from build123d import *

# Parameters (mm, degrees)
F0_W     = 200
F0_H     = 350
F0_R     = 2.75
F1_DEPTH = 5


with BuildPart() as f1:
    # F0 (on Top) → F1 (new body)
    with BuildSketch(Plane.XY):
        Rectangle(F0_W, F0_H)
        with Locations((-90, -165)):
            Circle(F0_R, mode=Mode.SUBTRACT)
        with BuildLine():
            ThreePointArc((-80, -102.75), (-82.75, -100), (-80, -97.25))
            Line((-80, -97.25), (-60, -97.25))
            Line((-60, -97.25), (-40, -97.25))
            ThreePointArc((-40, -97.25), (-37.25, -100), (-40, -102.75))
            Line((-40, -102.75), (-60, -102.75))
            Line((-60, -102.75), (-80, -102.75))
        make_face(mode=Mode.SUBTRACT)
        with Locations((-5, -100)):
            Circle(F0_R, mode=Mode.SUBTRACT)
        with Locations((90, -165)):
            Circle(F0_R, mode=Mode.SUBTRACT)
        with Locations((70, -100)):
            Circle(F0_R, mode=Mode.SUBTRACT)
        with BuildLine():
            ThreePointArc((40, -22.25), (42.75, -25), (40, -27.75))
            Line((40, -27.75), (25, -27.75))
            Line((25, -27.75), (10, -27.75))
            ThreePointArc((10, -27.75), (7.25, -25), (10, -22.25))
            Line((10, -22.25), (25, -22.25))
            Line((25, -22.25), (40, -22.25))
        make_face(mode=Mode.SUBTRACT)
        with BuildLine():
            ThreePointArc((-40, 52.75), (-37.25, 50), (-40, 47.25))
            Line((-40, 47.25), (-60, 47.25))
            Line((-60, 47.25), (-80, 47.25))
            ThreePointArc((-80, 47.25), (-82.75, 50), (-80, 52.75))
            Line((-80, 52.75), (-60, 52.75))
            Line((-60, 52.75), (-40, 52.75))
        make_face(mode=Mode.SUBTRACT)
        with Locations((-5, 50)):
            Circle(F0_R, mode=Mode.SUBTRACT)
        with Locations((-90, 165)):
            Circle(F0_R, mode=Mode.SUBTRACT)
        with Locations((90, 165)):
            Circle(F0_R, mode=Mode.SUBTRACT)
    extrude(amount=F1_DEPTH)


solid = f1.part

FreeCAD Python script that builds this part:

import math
import FreeCAD as App
import Part
import Sketcher

V = App.Vector
Q = App.Units.Quantity

doc = App.newDocument("Part")
params = doc.addObject("Spreadsheet::Sheet", "Params")
for row, (alias, value) in enumerate([
    ("sketch1_diameter", "5.5 mm"),
    ("sketch1_width", "200 mm"),
    ("sketch1_width2", "40 mm"),
    ("sketch1_width3", "30 mm"),
    ("sketch1_height", "350 mm"),
    ("pad1_length", "5 mm"),
], start=1):
    params.set(f"A{row}", alias)
    params.set(f"B{row}", "=" + value)
    params.setAlias(f"B{row}", alias)

body = doc.addObject("PartDesign::Body", "Body")

# Sketch on XY plane
sketch1 = body.newObject("Sketcher::SketchObject", "Sketch")
sketch1.AttachmentSupport = (doc.getObject("XY_Plane"), [""])
sketch1.MapMode = "FlatFace"
sketch1.addGeometry(Part.LineSegment(V(-100, 175, 0), V(-100, -175, 0)), False)
sketch1.addGeometry(Part.LineSegment(V(-100, -175, 0), V(100, -175, 0)), False)
sketch1.addGeometry(Part.LineSegment(V(100, -175, 0), V(100, 175, 0)), False)
sketch1.addGeometry(Part.LineSegment(V(100, 175, 0), V(-100, 175, 0)), False)
sketch1.addGeometry(Part.Circle(V(-90, -165, 0), V(0, 0, 1), 2.8), False)
sketch1.addGeometry(Part.LineSegment(V(-40, -102.8, 0), V(-80, -102.8, 0)), False)
sketch1.addGeometry(Part.ArcOfCircle(Part.Circle(V(-80, -100, 0), V(0, 0, 1), 2.8), math.radians(90), math.radians(270)), False)
sketch1.addGeometry(Part.LineSegment(V(-80, -97.2, 0), V(-40, -97.2, 0)), False)
sketch1.addGeometry(Part.ArcOfCircle(Part.Circle(V(-40, -100, 0), V(0, 0, 1), 2.8), math.radians(-90), math.radians(90)), False)
sketch1.addGeometry(Part.Circle(V(-5, -100, 0), V(0, 0, 1), 2.8), False)
sketch1.addGeometry(Part.Circle(V(90, -165, 0), V(0, 0, 1), 2.8), False)
sketch1.addGeometry(Part.Circle(V(70, -100, 0), V(0, 0, 1), 2.8), False)
sketch1.addGeometry(Part.LineSegment(V(10, -22.2, 0), V(40, -22.2, 0)), False)
sketch1.addGeometry(Part.ArcOfCircle(Part.Circle(V(40, -25, 0), V(0, 0, 1), 2.8), math.radians(-90), math.radians(90)), False)
sketch1.addGeometry(Part.LineSegment(V(40, -27.8, 0), V(10, -27.8, 0)), False)
sketch1.addGeometry(Part.ArcOfCircle(Part.Circle(V(10, -25, 0), V(0, 0, 1), 2.8), math.radians(90), math.radians(270)), False)
sketch1.addGeometry(Part.LineSegment(V(-80, 52.8, 0), V(-40, 52.8, 0)), False)
sketch1.addGeometry(Part.ArcOfCircle(Part.Circle(V(-40, 50, 0), V(0, 0, 1), 2.8), math.radians(-90), math.radians(90)), False)
sketch1.addGeometry(Part.LineSegment(V(-40, 47.2, 0), V(-80, 47.2, 0)), False)
sketch1.addGeometry(Part.ArcOfCircle(Part.Circle(V(-80, 50, 0), V(0, 0, 1), 2.8), math.radians(90), math.radians(270)), False)
sketch1.addGeometry(Part.Circle(V(-5, 50, 0), V(0, 0, 1), 2.8), False)
sketch1.addGeometry(Part.Circle(V(-90, 165, 0), V(0, 0, 1), 2.8), False)
sketch1.addGeometry(Part.Circle(V(90, 165, 0), V(0, 0, 1), 2.8), False)
sketch1.addConstraint(Sketcher.Constraint("Coincident", 0, 2, 1, 1))
sketch1.addConstraint(Sketcher.Constraint("Coincident", 1, 2, 2, 1))
sketch1.addConstraint(Sketcher.Constraint("Coincident", 2, 2, 3, 1))
sketch1.addConstraint(Sketcher.Constraint("Coincident", 3, 2, 0, 1))
sketch1.addConstraint(Sketcher.Constraint("Tangent", 5, 2, 6, 2))
sketch1.addConstraint(Sketcher.Constraint("Tangent", 6, 1, 7, 1))
sketch1.addConstraint(Sketcher.Constraint("Tangent", 7, 2, 8, 2))
sketch1.addConstraint(Sketcher.Constraint("Tangent", 8, 1, 5, 1))
sketch1.addConstraint(Sketcher.Constraint("Tangent", 12, 2, 13, 2))
sketch1.addConstraint(Sketcher.Constraint("Tangent", 13, 1, 14, 1))
sketch1.addConstraint(Sketcher.Constraint("Tangent", 14, 2, 15, 2))
sketch1.addConstraint(Sketcher.Constraint("Tangent", 15, 1, 12, 1))
sketch1.addConstraint(Sketcher.Constraint("Tangent", 16, 2, 17, 2))
sketch1.addConstraint(Sketcher.Constraint("Tangent", 17, 1, 18, 1))
sketch1.addConstraint(Sketcher.Constraint("Tangent", 18, 2, 19, 2))
sketch1.addConstraint(Sketcher.Constraint("Tangent", 19, 1, 16, 1))
sketch1.addConstraint(Sketcher.Constraint("Vertical", 0))
sketch1.addConstraint(Sketcher.Constraint("Horizontal", 1))
sketch1.addConstraint(Sketcher.Constraint("Vertical", 2))
sketch1.addConstraint(Sketcher.Constraint("Horizontal", 3))
sketch1.addConstraint(Sketcher.Constraint("Horizontal", 5))
sketch1.addConstraint(Sketcher.Constraint("Horizontal", 7))
sketch1.addConstraint(Sketcher.Constraint("Horizontal", 12))
sketch1.addConstraint(Sketcher.Constraint("Horizontal", 14))
sketch1.addConstraint(Sketcher.Constraint("Horizontal", 16))
sketch1.addConstraint(Sketcher.Constraint("Horizontal", 18))
sketch1.addConstraint(Sketcher.Constraint("Equal", 4, 6))
sketch1.addConstraint(Sketcher.Constraint("Equal", 8, 9))
sketch1.addConstraint(Sketcher.Constraint("Equal", 9, 10))
sketch1.addConstraint(Sketcher.Constraint("Equal", 10, 11))
sketch1.addConstraint(Sketcher.Constraint("Equal", 11, 13))
sketch1.addConstraint(Sketcher.Constraint("Equal", 15, 17))
sketch1.addConstraint(Sketcher.Constraint("Equal", 19, 20))
sketch1.addConstraint(Sketcher.Constraint("Equal", 20, 21))
sketch1.addConstraint(Sketcher.Constraint("Equal", 21, 22))
sketch1.addConstraint(Sketcher.Constraint("Symmetric", 10, 3, 21, 3, -1, 1))
sketch1.addConstraint(Sketcher.Constraint("Symmetric", 4, 3, 22, 3, -1, 1))
sketch1.addConstraint(Sketcher.Constraint("Symmetric", 0, 2, 2, 2, -1, 1))
sketch1.addConstraint(Sketcher.Constraint("Symmetric", 4, 3, 10, 3, -2))
sketch1.addConstraint(Sketcher.Constraint("Horizontal", 8, 3, 9, 3))
sketch1.addConstraint(Sketcher.Constraint("Horizontal", 9, 3, 11, 3))
sketch1.addConstraint(Sketcher.Constraint("Horizontal", 19, 3, 20, 3))
sketch1.addConstraint(Sketcher.Constraint("Vertical", 8, 3, 17, 3))
sketch1.addConstraint(Sketcher.Constraint("Vertical", 6, 3, 19, 3))
sketch1.addConstraint(Sketcher.Constraint("Vertical", 9, 3, 20, 3))
sketch1.addConstraint(Sketcher.Constraint("Diameter", 4, Q("5.5 mm")))
sketch1.addConstraint(Sketcher.Constraint("DistanceX", 1, 1, 1, 2, Q("200 mm")))
sketch1.addConstraint(Sketcher.Constraint("DistanceX", 5, 2, 5, 1, Q("40 mm")))
sketch1.addConstraint(Sketcher.Constraint("DistanceX", 12, 1, 12, 2, Q("30 mm")))
sketch1.addConstraint(Sketcher.Constraint("DistanceY", 0, 2, 0, 1, Q("350 mm")))
sketch1.addConstraint(Sketcher.Constraint("DistanceX", 4, 3, -1, 1, Q("90 mm")))
sketch1.addConstraint(Sketcher.Constraint("DistanceY", 4, 3, -1, 1, Q("165 mm")))
sketch1.addConstraint(Sketcher.Constraint("DistanceX", 6, 3, -1, 1, Q("80 mm")))
sketch1.addConstraint(Sketcher.Constraint("DistanceY", 6, 3, -1, 1, Q("100 mm")))
sketch1.addConstraint(Sketcher.Constraint("DistanceX", 9, 3, -1, 1, Q("5 mm")))
sketch1.addConstraint(Sketcher.Constraint("DistanceX", -1, 1, 11, 3, Q("70 mm")))
sketch1.addConstraint(Sketcher.Constraint("DistanceX", -1, 1, 13, 3, Q("40 mm")))
sketch1.addConstraint(Sketcher.Constraint("DistanceY", 13, 3, -1, 1, Q("25 mm")))
sketch1.addConstraint(Sketcher.Constraint("DistanceY", -1, 1, 17, 3, Q("50 mm")))
sketch1.setExpression("Constraints[45]", "Params.sketch1_diameter")
sketch1.setExpression("Constraints[46]", "Params.sketch1_width")
sketch1.setExpression("Constraints[47]", "Params.sketch1_width2")
sketch1.setExpression("Constraints[48]", "Params.sketch1_width3")
sketch1.setExpression("Constraints[49]", "Params.sketch1_height")
pad1 = body.newObject("PartDesign::Pad", "Pad")
pad1.Profile = sketch1
pad1.setExpression("Length", "Params.pad1_length")

doc.recompute()
